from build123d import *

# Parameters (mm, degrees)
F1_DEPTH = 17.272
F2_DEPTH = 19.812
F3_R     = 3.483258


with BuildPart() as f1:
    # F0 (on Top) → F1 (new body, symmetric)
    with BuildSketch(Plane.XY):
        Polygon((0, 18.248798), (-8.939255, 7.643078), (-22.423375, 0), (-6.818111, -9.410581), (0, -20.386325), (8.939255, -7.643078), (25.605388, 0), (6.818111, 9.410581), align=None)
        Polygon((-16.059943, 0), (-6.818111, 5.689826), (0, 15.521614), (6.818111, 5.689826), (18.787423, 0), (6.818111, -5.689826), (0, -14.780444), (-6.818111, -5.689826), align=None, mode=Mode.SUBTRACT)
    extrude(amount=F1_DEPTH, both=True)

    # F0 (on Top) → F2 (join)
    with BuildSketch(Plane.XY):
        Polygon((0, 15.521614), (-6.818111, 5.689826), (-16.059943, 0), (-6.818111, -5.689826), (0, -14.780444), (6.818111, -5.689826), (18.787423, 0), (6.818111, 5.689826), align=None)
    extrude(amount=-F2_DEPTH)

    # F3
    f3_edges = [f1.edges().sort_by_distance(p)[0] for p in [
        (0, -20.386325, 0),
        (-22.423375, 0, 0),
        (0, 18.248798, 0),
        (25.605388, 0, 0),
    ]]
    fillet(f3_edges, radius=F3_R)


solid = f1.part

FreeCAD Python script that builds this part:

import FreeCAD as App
import Part
import Sketcher
from FreeCAD import Vector


def edges_at(feature, points):
    """Names of the edges that pass closest to the given points."""
    edges = feature.Shape.Edges
    near = lambda p: min(range(len(edges)), key=lambda i: edges[i].distToShape(Part.Vertex(*p))[0])
    return sorted({f"Edge{near(p) + 1}" for p in points})

doc = App.newDocument("Part")
params = doc.addObject("Spreadsheet::Sheet", "Params")
for row, (alias, value) in enumerate([
    ("pad1_length", "1.36 in"),
    ("pad2_length", "0.78 in"),
    ("fillet_radius", "3.483258 mm"),
], start=1):
    params.set(f"A{row}", alias)
    params.set(f"B{row}", "=" + value)
    params.setAlias(f"B{row}", alias)

body = doc.addObject("PartDesign::Body", "Body")

# Sketch on XY plane
sketch1 = body.newObject("Sketcher::SketchObject", "Sketch")
sketch1.AttachmentSupport = (doc.getObject("XY_Plane"), [""])
sketch1.MapMode = "FlatFace"
sketch1.addGeometry(Part.LineSegment(Vector(0, 18.248798, 0), Vector(-8.939255, 7.643078, 0)), False)
sketch1.addGeometry(Part.LineSegment(Vector(-8.939255, 7.643078, 0), Vector(-22.423375, 0, 0)), False)
sketch1.addGeometry(Part.LineSegment(Vector(-22.423375, 0, 0), Vector(-6.818111, -9.410581, 0)), False)
sketch1.addGeometry(Part.LineSegment(Vector(-6.818111, -9.410581, 0), Vector(0, -20.386325, 0)), False)
sketch1.addGeometry(Part.LineSegment(Vector(0, -20.386325, 0), Vector(8.939255, -7.643078, 0)), False)
sketch1.addGeometry(Part.LineSegment(Vector(8.939255, -7.643078, 0), Vector(25.605388, 0, 0)), False)
sketch1.addGeometry(Part.LineSegment(Vector(25.605388, 0, 0), Vector(6.818111, 9.410581, 0)), False)
sketch1.addGeometry(Part.LineSegment(Vector(6.818111, 9.410581, 0), Vector(0, 18.248798, 0)), False)
sketch1.addGeometry(Part.LineSegment(Vector(-6.818111, -5.689826, 0), Vector(-16.059943, 0, 0)), False)
sketch1.addGeometry(Part.LineSegment(Vector(-16.059943, 0, 0), Vector(-6.818111, 5.689826, 0)), False)
sketch1.addGeometry(Part.LineSegment(Vector(-6.818111, 5.689826, 0), Vector(0, 15.521614, 0)), False)
sketch1.addGeometry(Part.LineSegment(Vector(0, 15.521614, 0), Vector(6.818111, 5.689826, 0)), False)
sketch1.addGeometry(Part.LineSegment(Vector(6.818111, 5.689826, 0), Vector(18.787423, 0, 0)), False)
sketch1.addGeometry(Part.LineSegment(Vector(18.787423, 0, 0), Vector(6.818111, -5.689826, 0)), False)
sketch1.addGeometry(Part.LineSegment(Vector(6.818111, -5.689826, 0), Vector(0, -14.780444, 0)), False)
sketch1.addGeometry(Part.LineSegment(Vector(0, -14.780444, 0), Vector(-6.818111, -5.689826, 0)), False)
sketch1.addConstraint(Sketcher.Constraint("Coincident", 0, 2, 1, 1))
sketch1.addConstraint(Sketcher.Constraint("Coincident", 1, 2, 2, 1))
sketch1.addConstraint(Sketcher.Constraint("Coincident", 2, 2, 3, 1))
sketch1.addConstraint(Sketcher.Constraint("Coincident", 3, 2, 4, 1))
sketch1.addConstraint(Sketcher.Constraint("Coincident", 4, 2, 5, 1))
sketch1.addConstraint(Sketcher.Constraint("Coincident", 5, 2, 6, 1))
sketch1.addConstraint(Sketcher.Constraint("Coincident", 6, 2, 7, 1))
sketch1.addConstraint(Sketcher.Constraint("Coincident", 7, 2, 0, 1))
sketch1.addConstraint(Sketcher.Constraint("Coincident", 8, 2, 9, 1))
sketch1.addConstraint(Sketcher.Constraint("Coincident", 9, 2, 10, 1))
sketch1.addConstraint(Sketcher.Constraint("Coincident", 10, 2, 11, 1))
sketch1.addConstraint(Sketcher.Constraint("Coincident", 11, 2, 12, 1))
sketch1.addConstraint(Sketcher.Constraint("Coincident", 12, 2, 13, 1))
sketch1.addConstraint(Sketcher.Constraint("Coincident", 13, 2, 14, 1))
sketch1.addConstraint(Sketcher.Constraint("Coincident", 14, 2, 15, 1))
sketch1.addConstraint(Sketcher.Constraint("Coincident", 15, 2, 8, 1))
sketch1.addConstraint(Sketcher.Constraint("Symmetric", 0, 2, 4, 2, -1, 1))
sketch1.addConstraint(Sketcher.Constraint("Symmetric", 2, 2, 6, 2, -1, 1))
sketch1.addConstraint(Sketcher.Constraint("Symmetric", 9, 2, 13, 2, -1, 1))
sketch1.addConstraint(Sketcher.Constraint("Symmetric", 11, 2, 15, 2, -1, 1))
sketch1.addConstraint(Sketcher.Constraint("Symmetric", 9, 2, 11, 2, -2))
sketch1.addConstraint(Sketcher.Constraint("PointOnObject", 1, 2, -1))
sketch1.addConstraint(Sketcher.Constraint("PointOnObject", 3, 2, -2))
sketch1.addConstraint(Sketcher.Constraint("PointOnObject", 5, 2, -1))
sketch1.addConstraint(Sketcher.Constraint("PointOnObject", 7, 2, -2))
sketch1.addConstraint(Sketcher.Constraint("PointOnObject", 8, 2, -1))
sketch1.addConstraint(Sketcher.Constraint("PointOnObject", 10, 2, -2))
sketch1.addConstraint(Sketcher.Constraint("PointOnObject", 12, 2, -1))
sketch1.addConstraint(Sketcher.Constraint("PointOnObject", 14, 2, -2))
sketch1.addConstraint(Sketcher.Constraint("Vertical", 2, 2, 9, 2))
sketch1.addConstraint(Sketcher.Constraint("DistanceY", -1, 1, 7, 2, 18.248798))
sketch1.addConstraint(Sketcher.Constraint("DistanceX", 2, 2, 5, 2, 32.423499))
sketch1.addConstraint(Sketcher.Constraint("Distance", 0, 13.870529))
sketch1.addConstraint(Sketcher.Constraint("Distance", 4, 15.566009))
sketch1.addConstraint(Sketcher.Constraint("Distance", 5, 18.33512))
sketch1.addConstraint(Sketcher.Constraint("Distance", 7, 11.162469))
sketch1.addConstraint(Sketcher.Constraint("Distance", 10, 11.96456))
sketch1.addConstraint(Sketcher.Constraint("Distance", 12, 13.252869))
sketch1.addConstraint(Sketcher.Constraint("Distance", 14, 11.363361))
sketch1.addConstraint(Sketcher.Constraint("DistanceX", 2, 2, -1, 1, 6.818111))
sketch1.addConstraint(Sketcher.Constraint("DistanceX", 1, 2, 0, 2, 13.48412))
sketch1.addConstraint(Sketcher.Constraint("DistanceX", 1, 2, 8, 2, 6.363432))
sketch1.addConstraint(Sketcher.Constraint("DistanceX", 4, 2, 12, 2, 9.848168))
pad1 = body.newObject("PartDesign::Pad", "Pad")
pad1.Profile = sketch1
pad1.setExpression("Length", "Params.pad1_length")
pad1.Midplane = True

# Sketch on XY plane
sketch2 = body.newObject("Sketcher::SketchObject", "Sketch001")
sketch2.AttachmentSupport = (doc.getObject("XY_Plane"), [""])
sketch2.MapMode = "FlatFace"
sketch2.addGeometry(Part.LineSegment(Vector(0, 15.521614, 0), Vector(-6.818111, 5.689826, 0)), False)
sketch2.addGeometry(Part.LineSegment(Vector(-6.818111, 5.689826, 0), Vector(-16.059943, 0, 0)), False)
sketch2.addGeometry(Part.LineSegment(Vector(-16.059943, 0, 0), Vector(-6.818111, -5.689826, 0)), False)
sketch2.addGeometry(Part.LineSegment(Vector(-6.818111, -5.689826, 0), Vector(0, -14.780444, 0)), False)
sketch2.addGeometry(Part.LineSegment(Vector(0, -14.780444, 0), Vector(6.818111, -5.689826, 0)), False)
sketch2.addGeometry(Part.LineSegment(Vector(6.818111, -5.689826, 0), Vector(18.787423, 0, 0)), False)
sketch2.addGeometry(Part.LineSegment(Vector(18.787423, 0, 0), Vector(6.818111, 5.689826, 0)), False)
sketch2.addGeometry(Part.LineSegment(Vector(6.818111, 5.689826, 0), Vector(0, 15.521614, 0)), False)
sketch2.addConstraint(Sketcher.Constraint("Coincident", 0, 2, 1, 1))
sketch2.addConstraint(Sketcher.Constraint("Coincident", 1, 2, 2, 1))
sketch2.addConstraint(Sketcher.Constraint("Coincident", 2, 2, 3, 1))
sketch2.addConstraint(Sketcher.Constraint("Coincident", 3, 2, 4, 1))
sketch2.addConstraint(Sketcher.Constraint("Coincident", 4, 2, 5, 1))
sketch2.addConstraint(Sketcher.Constraint("Coincident", 5, 2, 6, 1))
sketch2.addConstraint(Sketcher.Constraint("Coincident", 6, 2, 7, 1))
sketch2.addConstraint(Sketcher.Constraint("Coincident", 7, 2, 0, 1))
sketch2.addConstraint(Sketcher.Constraint("Symmetric", 0, 2, 4, 2, -1, 1))
sketch2.addConstraint(Sketcher.Constraint("Symmetric", 2, 2, 6, 2, -1, 1))
sketch2.addConstraint(Sketcher.Constraint("Symmetric", 2, 2, 4, 2, -2))
sketch2.addConstraint(Sketcher.Constraint("PointOnObject", 1, 2, -1))
sketch2.addConstraint(Sketcher.Constraint("PointOnObject", 3, 2, -2))
sketch2.addConstraint(Sketcher.Constraint("PointOnObject", 5, 2, -1))
sketch2.addConstraint(Sketcher.Constraint("PointOnObject", 7, 2, -2))
sketch2.addConstraint(Sketcher.Constraint("Distance", 0, 11.96456))
sketch2.addConstraint(Sketcher.Constraint("Distance", 3, 11.363361))
sketch2.addConstraint(Sketcher.Constraint("Distance", 5, 13.252869))
sketch2.addConstraint(Sketcher.Constraint("DistanceX", 0, 2, -1, 1, 6.818111))
sketch2.addConstraint(Sketcher.Constraint("DistanceY", 3, 2, 0, 2, 20.47027))
sketch2.addConstraint(Sketcher.Constraint("Distance", 1, 10.852906))
pad2 = body.newObject("PartDesign::Pad", "Pad001")
pad2.Profile = sketch2
pad2.setExpression("Length", "Params.pad2_length")
pad2.Reversed = True
doc.recompute()

fillet = body.newObject("PartDesign::Fillet", "Fillet")
fillet.Base = (pad2, edges_at(pad2, [
    (0, -20.386, 0),
    (-22.423, 0, 0),
    (0, 18.249, 0),
    (25.605, 0, 0),
]))
fillet.setExpression("Radius", "Params.fillet_radius")

doc.recompute()
